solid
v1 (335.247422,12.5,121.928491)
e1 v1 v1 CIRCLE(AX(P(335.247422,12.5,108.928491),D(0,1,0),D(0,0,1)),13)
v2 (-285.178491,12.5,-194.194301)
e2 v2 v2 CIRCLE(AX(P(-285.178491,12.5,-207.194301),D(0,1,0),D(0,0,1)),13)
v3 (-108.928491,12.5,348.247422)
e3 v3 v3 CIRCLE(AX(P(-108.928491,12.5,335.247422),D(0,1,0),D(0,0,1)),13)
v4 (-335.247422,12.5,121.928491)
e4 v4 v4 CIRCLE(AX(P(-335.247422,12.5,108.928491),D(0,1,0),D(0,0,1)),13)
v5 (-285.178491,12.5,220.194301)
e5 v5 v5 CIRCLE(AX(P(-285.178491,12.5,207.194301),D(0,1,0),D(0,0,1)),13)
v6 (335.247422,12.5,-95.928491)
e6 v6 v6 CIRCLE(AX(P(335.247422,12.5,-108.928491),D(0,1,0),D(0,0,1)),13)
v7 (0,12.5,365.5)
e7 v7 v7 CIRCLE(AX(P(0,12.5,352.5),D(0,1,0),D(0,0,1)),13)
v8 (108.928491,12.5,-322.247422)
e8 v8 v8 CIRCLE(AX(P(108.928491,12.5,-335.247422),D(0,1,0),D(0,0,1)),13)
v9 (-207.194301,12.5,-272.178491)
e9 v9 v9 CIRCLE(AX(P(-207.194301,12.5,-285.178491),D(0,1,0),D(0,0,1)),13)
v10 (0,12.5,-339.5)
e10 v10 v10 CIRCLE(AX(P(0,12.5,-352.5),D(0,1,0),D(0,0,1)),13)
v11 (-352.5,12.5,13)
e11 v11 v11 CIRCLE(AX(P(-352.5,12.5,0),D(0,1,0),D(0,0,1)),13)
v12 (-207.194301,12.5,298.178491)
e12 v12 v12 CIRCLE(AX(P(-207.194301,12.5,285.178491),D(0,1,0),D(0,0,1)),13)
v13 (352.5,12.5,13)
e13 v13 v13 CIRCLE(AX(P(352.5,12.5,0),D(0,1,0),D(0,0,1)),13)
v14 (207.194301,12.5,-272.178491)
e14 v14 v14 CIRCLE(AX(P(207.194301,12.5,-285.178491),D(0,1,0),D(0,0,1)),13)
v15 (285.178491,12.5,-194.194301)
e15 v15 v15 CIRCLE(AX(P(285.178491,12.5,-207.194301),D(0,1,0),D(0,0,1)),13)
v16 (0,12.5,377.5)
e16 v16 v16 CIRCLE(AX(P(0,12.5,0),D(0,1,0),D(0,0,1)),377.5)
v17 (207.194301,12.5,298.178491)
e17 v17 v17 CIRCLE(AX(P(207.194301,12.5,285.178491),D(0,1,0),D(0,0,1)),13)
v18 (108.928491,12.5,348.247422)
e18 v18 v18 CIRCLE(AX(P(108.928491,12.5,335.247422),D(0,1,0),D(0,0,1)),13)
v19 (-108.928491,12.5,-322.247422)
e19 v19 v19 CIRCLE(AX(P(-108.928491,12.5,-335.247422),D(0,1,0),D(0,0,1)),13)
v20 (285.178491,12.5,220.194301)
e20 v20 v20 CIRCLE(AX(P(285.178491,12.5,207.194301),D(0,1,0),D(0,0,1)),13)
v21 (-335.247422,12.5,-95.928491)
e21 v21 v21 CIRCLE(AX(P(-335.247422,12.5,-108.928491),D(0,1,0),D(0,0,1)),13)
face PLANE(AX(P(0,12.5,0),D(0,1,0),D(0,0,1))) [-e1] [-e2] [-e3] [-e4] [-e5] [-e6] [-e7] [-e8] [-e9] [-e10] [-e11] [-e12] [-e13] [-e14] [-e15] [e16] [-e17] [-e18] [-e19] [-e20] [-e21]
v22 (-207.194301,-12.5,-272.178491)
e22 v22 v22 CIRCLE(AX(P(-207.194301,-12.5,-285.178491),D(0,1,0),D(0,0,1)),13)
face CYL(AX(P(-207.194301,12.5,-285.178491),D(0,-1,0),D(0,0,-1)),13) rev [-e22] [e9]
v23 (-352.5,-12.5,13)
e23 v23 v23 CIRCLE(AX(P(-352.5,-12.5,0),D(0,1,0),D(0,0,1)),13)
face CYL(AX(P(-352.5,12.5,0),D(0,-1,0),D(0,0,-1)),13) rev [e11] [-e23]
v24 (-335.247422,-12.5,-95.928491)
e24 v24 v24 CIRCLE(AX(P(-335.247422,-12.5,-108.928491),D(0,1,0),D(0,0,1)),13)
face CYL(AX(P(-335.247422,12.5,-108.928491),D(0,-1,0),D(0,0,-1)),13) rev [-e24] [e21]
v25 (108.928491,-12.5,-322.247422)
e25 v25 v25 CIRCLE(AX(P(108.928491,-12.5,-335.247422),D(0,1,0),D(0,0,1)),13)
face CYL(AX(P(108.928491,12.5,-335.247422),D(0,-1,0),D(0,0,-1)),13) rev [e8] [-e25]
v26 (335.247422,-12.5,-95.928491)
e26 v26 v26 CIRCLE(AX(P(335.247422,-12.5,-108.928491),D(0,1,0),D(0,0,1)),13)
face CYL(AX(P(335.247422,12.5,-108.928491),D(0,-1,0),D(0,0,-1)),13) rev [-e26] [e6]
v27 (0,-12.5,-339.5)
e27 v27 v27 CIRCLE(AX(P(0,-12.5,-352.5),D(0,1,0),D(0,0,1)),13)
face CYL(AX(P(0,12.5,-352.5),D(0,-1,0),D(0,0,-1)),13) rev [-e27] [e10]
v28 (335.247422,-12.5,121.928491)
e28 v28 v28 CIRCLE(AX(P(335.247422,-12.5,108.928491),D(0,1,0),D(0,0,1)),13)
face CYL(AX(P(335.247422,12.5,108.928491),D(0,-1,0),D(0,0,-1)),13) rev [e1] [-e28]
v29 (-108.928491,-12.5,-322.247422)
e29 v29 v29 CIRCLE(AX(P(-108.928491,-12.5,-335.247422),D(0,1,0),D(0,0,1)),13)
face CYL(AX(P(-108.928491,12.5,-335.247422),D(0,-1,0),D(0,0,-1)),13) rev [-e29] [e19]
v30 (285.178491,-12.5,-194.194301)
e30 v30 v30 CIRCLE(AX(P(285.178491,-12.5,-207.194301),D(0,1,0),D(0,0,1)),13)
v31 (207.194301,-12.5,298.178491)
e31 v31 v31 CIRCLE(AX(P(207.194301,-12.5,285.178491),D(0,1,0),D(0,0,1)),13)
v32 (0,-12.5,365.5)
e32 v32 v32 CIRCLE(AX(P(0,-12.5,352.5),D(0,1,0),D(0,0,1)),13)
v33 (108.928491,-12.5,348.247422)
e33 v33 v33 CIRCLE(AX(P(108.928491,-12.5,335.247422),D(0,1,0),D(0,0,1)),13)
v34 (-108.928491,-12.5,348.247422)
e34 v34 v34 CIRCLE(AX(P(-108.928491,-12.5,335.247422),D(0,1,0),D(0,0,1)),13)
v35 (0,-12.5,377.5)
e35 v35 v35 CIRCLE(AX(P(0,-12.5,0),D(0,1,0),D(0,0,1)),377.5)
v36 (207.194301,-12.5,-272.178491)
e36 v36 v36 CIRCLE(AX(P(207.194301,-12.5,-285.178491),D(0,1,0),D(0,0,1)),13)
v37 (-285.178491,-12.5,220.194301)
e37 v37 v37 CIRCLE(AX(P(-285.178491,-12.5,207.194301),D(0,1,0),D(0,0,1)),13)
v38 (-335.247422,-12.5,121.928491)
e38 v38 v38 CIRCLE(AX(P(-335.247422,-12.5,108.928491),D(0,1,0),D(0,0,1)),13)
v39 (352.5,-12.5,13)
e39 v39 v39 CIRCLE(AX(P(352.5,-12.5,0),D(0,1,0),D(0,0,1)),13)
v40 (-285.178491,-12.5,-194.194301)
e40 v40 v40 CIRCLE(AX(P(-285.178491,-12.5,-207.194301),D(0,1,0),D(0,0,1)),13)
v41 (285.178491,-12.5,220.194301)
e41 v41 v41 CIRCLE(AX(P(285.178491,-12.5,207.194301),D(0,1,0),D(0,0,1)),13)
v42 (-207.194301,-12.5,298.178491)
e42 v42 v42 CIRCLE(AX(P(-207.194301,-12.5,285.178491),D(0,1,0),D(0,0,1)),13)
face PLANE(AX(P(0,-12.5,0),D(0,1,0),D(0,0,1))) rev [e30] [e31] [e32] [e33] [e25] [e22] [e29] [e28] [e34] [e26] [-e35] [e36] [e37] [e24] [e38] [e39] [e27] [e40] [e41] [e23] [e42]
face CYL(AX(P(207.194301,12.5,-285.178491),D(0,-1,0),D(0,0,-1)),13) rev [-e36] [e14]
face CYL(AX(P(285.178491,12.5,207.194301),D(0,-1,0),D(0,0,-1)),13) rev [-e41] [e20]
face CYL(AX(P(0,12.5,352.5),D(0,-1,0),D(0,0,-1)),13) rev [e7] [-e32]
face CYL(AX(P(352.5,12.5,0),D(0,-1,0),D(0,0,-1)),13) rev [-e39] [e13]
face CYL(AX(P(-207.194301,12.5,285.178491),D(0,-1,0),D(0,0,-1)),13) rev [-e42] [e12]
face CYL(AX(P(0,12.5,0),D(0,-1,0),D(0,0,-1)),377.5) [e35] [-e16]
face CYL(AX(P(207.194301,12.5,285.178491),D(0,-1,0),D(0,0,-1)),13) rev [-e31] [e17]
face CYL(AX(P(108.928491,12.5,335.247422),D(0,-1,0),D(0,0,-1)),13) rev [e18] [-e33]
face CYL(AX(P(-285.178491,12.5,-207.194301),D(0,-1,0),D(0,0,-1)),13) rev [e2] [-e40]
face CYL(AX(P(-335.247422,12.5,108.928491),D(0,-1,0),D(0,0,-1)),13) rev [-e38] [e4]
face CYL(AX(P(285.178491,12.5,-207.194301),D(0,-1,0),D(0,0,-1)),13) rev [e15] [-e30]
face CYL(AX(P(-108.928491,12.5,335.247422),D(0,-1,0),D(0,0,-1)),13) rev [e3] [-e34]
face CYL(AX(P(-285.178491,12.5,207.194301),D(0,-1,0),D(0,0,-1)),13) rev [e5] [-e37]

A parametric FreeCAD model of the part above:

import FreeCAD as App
import Part
import Sketcher

doc = App.newDocument("Part")
params = doc.addObject("Spreadsheet::Sheet", "Params")
for row, (alias, value) in enumerate([
    ("sketch1_diameter", "755 mm"),
    ("sketch1_diameter2", "26 mm"),
    ("pad1_length", "25 mm"),
], start=1):
    params.set(f"A{row}", alias)
    params.set(f"B{row}", "=" + value)
    params.setAlias(f"B{row}", alias)

body = doc.addObject("PartDesign::Body", "Body")

sketch1 = body.newObject("Sketcher::SketchObject", "Sketch")
sketch1.AttachmentSupport = (doc.getObject("XZ_Plane"), [""])
sketch1.MapMode = "FlatFace"
sketch1.addGeometry(Part.Circle(App.Vector(0, 0, 0), App.Vector(0, 0, 1), 377.5), False)
sketch1.addGeometry(Part.Circle(App.Vector(-285.178491, -207.194301, 0), App.Vector(0, 0, 1), 13), False)
sketch1.addGeometry(Part.Circle(App.Vector(-207.194301, -285.178491, 0), App.Vector(0, 0, 1), 13), False)
sketch1.addGeometry(Part.Circle(App.Vector(-335.247422, -108.928491, 0), App.Vector(0, 0, 1), 13), False)
sketch1.addGeometry(Part.Circle(App.Vector(-108.928491, -335.247422, 0), App.Vector(0, 0, 1), 13), False)
sketch1.addGeometry(Part.Circle(App.Vector(0, -352.5, 0), App.Vector(0, 0, 1), 13), False)
sketch1.addGeometry(Part.Circle(App.Vector(-352.5, 0, 0), App.Vector(0, 0, 1), 13), False)
sketch1.addGeometry(Part.Circle(App.Vector(-335.247422, 108.928491, 0), App.Vector(0, 0, 1), 13), False)
sketch1.addGeometry(Part.Circle(App.Vector(-285.178491, 207.194301, 0), App.Vector(0, 0, 1), 13), False)
sketch1.addGeometry(Part.Circle(App.Vector(-207.194301, 285.178491, 0), App.Vector(0, 0, 1), 13), False)
sketch1.addGeometry(Part.Circle(App.Vector(-108.928491, 335.247422, 0), App.Vector(0, 0, 1), 13), False)
sketch1.addGeometry(Part.Circle(App.Vector(108.928491, -335.247422, 0), App.Vector(0, 0, 1), 13), False)
sketch1.addGeometry(Part.Circle(App.Vector(207.194301, -285.178491, 0), App.Vector(0, 0, 1), 13), False)
sketch1.addGeometry(Part.Circle(App.Vector(285.178491, -207.194301, 0), App.Vector(0, 0, 1), 13), False)
sketch1.addGeometry(Part.Circle(App.Vector(335.247422, -108.928491, 0), App.Vector(0, 0, 1), 13), False)
sketch1.addGeometry(Part.Circle(App.Vector(352.5, 0, 0), App.Vector(0, 0, 1), 13), False)
sketch1.addGeometry(Part.Circle(App.Vector(0, 352.5, 0), App.Vector(0, 0, 1), 13), False)
sketch1.addGeometry(Part.Circle(App.Vector(108.928491, 335.247422, 0), App.Vector(0, 0, 1), 13), False)
sketch1.addGeometry(Part.Circle(App.Vector(335.247422, 108.928491, 0), App.Vector(0, 0, 1), 13), False)
sketch1.addGeometry(Part.Circle(App.Vector(207.194301, 285.178491, 0), App.Vector(0, 0, 1), 13), False)
sketch1.addGeometry(Part.Circle(App.Vector(285.178491, 207.194301, 0), App.Vector(0, 0, 1), 13), False)
sketch1.addConstraint(Sketcher.Constraint("Coincident", 0, 3, -1, 1))
sketch1.addConstraint(Sketcher.Constraint("Equal", 1, 2))
sketch1.addConstraint(Sketcher.Constraint("Equal", 2, 3))
sketch1.addConstraint(Sketcher.Constraint("Equal", 3, 4))
sketch1.addConstraint(Sketcher.Constraint("Equal", 4, 5))
sketch1.addConstraint(Sketcher.Constraint("Equal", 5, 6))
sketch1.addConstraint(Sketcher.Constraint("Equal", 6, 7))
sketch1.addConstraint(Sketcher.Constraint("Equal", 7, 8))
sketch1.addConstraint(Sketcher.Constraint("Equal", 8, 9))
sketch1.addConstraint(Sketcher.Constraint("Equal", 9, 10))
sketch1.addConstraint(Sketcher.Constraint("Equal", 10, 11))
sketch1.addConstraint(Sketcher.Constraint("Equal", 11, 12))
sketch1.addConstraint(Sketcher.Constraint("Equal", 12, 13))
sketch1.addConstraint(Sketcher.Constraint("Equal", 13, 14))
sketch1.addConstraint(Sketcher.Constraint("Equal", 14, 15))
sketch1.addConstraint(Sketcher.Constraint("Equal", 15, 16))
sketch1.addConstraint(Sketcher.Constraint("Equal", 16, 17))
sketch1.addConstraint(Sketcher.Constraint("Equal", 17, 18))
sketch1.addConstraint(Sketcher.Constraint("Equal", 18, 19))
sketch1.addConstraint(Sketcher.Constraint("Equal", 19, 20))
sketch1.addConstraint(Sketcher.Constraint("Symmetric", 10, 3, 11, 3, -1, 1))
sketch1.addConstraint(Sketcher.Constraint("Symmetric", 9, 3, 12, 3, -1, 1))
sketch1.addConstraint(Sketcher.Constraint("Symmetric", 8, 3, 13, 3, -1, 1))
sketch1.addConstraint(Sketcher.Constraint("Symmetric", 7, 3, 14, 3, -1, 1))
sketch1.addConstraint(Sketcher.Constraint("Symmetric", 6, 3, 15, 3, -1, 1))
sketch1.addConstraint(Sketcher.Constraint("Symmetric", 5, 3, 16, 3, -1, 1))
sketch1.addConstraint(Sketcher.Constraint("Symmetric", 4, 3, 17, 3, -1, 1))
sketch1.addConstraint(Sketcher.Constraint("Symmetric", 3, 3, 18, 3, -1, 1))
sketch1.addConstraint(Sketcher.Constraint("Symmetric", 2, 3, 19, 3, -1, 1))
sketch1.addConstraint(Sketcher.Constraint("Symmetric", 1, 3, 20, 3, -1, 1))
sketch1.addConstraint(Sketcher.Constraint("Symmetric", 4, 3, 11, 3, -2))
sketch1.addConstraint(Sketcher.Constraint("Symmetric", 2, 3, 12, 3, -2))
sketch1.addConstraint(Sketcher.Constraint("Symmetric", 1, 3, 13, 3, -2))
sketch1.addConstraint(Sketcher.Constraint("Symmetric", 3, 3, 14, 3, -2))
sketch1.addConstraint(Sketcher.Constraint("PointOnObject", 5, 3, -2))
sketch1.addConstraint(Sketcher.Constraint("PointOnObject", 6, 3, -1))
sketch1.addConstraint(Sketcher.Constraint("Diameter", 0, 755.0))
sketch1.addConstraint(Sketcher.Constraint("Diameter", 1, 26.0))
sketch1.addConstraint(Sketcher.Constraint("DistanceY", 5, 3, -1, 1, 352.5))
sketch1.addConstraint(Sketcher.Constraint("DistanceX", 6, 3, -1, 1, 352.5))
sketch1.addConstraint(Sketcher.Constraint("DistanceY", 2, 3, 3, 3, 176.25))
sketch1.addConstraint(Sketcher.Constraint("DistanceX", 1, 3, 4, 3, 176.25))
sketch1.addConstraint(Sketcher.Constraint("DistanceY", 1, 3, -1, 1, 207.194301))
sketch1.addConstraint(Sketcher.Constraint("DistanceX", 2, 3, -1, 1, 207.194301))
sketch1.addConstraint(Sketcher.Constraint("DistanceX", 1, 3, -1, 1, 285.178491))
sketch1.addConstraint(Sketcher.Constraint("DistanceY", 2, 3, -1, 1, 285.178491))
sketch1.addConstraint(Sketcher.Constraint("DistanceX", 3, 3, -1, 1, 335.247422))
sketch1.addConstraint(Sketcher.Constraint("DistanceY", 4, 3, -1, 1, 335.247422))
sketch1.setExpression("Constraints[36]", "Params.sketch1_diameter")
sketch1.setExpression("Constraints[37]", "Params.sketch1_diameter2")
pad1 = body.newObject("PartDesign::Pad", "Pad")
pad1.Profile = sketch1
pad1.setExpression("Length", "Params.pad1_length")
pad1.Midplane = True

doc.recompute()
